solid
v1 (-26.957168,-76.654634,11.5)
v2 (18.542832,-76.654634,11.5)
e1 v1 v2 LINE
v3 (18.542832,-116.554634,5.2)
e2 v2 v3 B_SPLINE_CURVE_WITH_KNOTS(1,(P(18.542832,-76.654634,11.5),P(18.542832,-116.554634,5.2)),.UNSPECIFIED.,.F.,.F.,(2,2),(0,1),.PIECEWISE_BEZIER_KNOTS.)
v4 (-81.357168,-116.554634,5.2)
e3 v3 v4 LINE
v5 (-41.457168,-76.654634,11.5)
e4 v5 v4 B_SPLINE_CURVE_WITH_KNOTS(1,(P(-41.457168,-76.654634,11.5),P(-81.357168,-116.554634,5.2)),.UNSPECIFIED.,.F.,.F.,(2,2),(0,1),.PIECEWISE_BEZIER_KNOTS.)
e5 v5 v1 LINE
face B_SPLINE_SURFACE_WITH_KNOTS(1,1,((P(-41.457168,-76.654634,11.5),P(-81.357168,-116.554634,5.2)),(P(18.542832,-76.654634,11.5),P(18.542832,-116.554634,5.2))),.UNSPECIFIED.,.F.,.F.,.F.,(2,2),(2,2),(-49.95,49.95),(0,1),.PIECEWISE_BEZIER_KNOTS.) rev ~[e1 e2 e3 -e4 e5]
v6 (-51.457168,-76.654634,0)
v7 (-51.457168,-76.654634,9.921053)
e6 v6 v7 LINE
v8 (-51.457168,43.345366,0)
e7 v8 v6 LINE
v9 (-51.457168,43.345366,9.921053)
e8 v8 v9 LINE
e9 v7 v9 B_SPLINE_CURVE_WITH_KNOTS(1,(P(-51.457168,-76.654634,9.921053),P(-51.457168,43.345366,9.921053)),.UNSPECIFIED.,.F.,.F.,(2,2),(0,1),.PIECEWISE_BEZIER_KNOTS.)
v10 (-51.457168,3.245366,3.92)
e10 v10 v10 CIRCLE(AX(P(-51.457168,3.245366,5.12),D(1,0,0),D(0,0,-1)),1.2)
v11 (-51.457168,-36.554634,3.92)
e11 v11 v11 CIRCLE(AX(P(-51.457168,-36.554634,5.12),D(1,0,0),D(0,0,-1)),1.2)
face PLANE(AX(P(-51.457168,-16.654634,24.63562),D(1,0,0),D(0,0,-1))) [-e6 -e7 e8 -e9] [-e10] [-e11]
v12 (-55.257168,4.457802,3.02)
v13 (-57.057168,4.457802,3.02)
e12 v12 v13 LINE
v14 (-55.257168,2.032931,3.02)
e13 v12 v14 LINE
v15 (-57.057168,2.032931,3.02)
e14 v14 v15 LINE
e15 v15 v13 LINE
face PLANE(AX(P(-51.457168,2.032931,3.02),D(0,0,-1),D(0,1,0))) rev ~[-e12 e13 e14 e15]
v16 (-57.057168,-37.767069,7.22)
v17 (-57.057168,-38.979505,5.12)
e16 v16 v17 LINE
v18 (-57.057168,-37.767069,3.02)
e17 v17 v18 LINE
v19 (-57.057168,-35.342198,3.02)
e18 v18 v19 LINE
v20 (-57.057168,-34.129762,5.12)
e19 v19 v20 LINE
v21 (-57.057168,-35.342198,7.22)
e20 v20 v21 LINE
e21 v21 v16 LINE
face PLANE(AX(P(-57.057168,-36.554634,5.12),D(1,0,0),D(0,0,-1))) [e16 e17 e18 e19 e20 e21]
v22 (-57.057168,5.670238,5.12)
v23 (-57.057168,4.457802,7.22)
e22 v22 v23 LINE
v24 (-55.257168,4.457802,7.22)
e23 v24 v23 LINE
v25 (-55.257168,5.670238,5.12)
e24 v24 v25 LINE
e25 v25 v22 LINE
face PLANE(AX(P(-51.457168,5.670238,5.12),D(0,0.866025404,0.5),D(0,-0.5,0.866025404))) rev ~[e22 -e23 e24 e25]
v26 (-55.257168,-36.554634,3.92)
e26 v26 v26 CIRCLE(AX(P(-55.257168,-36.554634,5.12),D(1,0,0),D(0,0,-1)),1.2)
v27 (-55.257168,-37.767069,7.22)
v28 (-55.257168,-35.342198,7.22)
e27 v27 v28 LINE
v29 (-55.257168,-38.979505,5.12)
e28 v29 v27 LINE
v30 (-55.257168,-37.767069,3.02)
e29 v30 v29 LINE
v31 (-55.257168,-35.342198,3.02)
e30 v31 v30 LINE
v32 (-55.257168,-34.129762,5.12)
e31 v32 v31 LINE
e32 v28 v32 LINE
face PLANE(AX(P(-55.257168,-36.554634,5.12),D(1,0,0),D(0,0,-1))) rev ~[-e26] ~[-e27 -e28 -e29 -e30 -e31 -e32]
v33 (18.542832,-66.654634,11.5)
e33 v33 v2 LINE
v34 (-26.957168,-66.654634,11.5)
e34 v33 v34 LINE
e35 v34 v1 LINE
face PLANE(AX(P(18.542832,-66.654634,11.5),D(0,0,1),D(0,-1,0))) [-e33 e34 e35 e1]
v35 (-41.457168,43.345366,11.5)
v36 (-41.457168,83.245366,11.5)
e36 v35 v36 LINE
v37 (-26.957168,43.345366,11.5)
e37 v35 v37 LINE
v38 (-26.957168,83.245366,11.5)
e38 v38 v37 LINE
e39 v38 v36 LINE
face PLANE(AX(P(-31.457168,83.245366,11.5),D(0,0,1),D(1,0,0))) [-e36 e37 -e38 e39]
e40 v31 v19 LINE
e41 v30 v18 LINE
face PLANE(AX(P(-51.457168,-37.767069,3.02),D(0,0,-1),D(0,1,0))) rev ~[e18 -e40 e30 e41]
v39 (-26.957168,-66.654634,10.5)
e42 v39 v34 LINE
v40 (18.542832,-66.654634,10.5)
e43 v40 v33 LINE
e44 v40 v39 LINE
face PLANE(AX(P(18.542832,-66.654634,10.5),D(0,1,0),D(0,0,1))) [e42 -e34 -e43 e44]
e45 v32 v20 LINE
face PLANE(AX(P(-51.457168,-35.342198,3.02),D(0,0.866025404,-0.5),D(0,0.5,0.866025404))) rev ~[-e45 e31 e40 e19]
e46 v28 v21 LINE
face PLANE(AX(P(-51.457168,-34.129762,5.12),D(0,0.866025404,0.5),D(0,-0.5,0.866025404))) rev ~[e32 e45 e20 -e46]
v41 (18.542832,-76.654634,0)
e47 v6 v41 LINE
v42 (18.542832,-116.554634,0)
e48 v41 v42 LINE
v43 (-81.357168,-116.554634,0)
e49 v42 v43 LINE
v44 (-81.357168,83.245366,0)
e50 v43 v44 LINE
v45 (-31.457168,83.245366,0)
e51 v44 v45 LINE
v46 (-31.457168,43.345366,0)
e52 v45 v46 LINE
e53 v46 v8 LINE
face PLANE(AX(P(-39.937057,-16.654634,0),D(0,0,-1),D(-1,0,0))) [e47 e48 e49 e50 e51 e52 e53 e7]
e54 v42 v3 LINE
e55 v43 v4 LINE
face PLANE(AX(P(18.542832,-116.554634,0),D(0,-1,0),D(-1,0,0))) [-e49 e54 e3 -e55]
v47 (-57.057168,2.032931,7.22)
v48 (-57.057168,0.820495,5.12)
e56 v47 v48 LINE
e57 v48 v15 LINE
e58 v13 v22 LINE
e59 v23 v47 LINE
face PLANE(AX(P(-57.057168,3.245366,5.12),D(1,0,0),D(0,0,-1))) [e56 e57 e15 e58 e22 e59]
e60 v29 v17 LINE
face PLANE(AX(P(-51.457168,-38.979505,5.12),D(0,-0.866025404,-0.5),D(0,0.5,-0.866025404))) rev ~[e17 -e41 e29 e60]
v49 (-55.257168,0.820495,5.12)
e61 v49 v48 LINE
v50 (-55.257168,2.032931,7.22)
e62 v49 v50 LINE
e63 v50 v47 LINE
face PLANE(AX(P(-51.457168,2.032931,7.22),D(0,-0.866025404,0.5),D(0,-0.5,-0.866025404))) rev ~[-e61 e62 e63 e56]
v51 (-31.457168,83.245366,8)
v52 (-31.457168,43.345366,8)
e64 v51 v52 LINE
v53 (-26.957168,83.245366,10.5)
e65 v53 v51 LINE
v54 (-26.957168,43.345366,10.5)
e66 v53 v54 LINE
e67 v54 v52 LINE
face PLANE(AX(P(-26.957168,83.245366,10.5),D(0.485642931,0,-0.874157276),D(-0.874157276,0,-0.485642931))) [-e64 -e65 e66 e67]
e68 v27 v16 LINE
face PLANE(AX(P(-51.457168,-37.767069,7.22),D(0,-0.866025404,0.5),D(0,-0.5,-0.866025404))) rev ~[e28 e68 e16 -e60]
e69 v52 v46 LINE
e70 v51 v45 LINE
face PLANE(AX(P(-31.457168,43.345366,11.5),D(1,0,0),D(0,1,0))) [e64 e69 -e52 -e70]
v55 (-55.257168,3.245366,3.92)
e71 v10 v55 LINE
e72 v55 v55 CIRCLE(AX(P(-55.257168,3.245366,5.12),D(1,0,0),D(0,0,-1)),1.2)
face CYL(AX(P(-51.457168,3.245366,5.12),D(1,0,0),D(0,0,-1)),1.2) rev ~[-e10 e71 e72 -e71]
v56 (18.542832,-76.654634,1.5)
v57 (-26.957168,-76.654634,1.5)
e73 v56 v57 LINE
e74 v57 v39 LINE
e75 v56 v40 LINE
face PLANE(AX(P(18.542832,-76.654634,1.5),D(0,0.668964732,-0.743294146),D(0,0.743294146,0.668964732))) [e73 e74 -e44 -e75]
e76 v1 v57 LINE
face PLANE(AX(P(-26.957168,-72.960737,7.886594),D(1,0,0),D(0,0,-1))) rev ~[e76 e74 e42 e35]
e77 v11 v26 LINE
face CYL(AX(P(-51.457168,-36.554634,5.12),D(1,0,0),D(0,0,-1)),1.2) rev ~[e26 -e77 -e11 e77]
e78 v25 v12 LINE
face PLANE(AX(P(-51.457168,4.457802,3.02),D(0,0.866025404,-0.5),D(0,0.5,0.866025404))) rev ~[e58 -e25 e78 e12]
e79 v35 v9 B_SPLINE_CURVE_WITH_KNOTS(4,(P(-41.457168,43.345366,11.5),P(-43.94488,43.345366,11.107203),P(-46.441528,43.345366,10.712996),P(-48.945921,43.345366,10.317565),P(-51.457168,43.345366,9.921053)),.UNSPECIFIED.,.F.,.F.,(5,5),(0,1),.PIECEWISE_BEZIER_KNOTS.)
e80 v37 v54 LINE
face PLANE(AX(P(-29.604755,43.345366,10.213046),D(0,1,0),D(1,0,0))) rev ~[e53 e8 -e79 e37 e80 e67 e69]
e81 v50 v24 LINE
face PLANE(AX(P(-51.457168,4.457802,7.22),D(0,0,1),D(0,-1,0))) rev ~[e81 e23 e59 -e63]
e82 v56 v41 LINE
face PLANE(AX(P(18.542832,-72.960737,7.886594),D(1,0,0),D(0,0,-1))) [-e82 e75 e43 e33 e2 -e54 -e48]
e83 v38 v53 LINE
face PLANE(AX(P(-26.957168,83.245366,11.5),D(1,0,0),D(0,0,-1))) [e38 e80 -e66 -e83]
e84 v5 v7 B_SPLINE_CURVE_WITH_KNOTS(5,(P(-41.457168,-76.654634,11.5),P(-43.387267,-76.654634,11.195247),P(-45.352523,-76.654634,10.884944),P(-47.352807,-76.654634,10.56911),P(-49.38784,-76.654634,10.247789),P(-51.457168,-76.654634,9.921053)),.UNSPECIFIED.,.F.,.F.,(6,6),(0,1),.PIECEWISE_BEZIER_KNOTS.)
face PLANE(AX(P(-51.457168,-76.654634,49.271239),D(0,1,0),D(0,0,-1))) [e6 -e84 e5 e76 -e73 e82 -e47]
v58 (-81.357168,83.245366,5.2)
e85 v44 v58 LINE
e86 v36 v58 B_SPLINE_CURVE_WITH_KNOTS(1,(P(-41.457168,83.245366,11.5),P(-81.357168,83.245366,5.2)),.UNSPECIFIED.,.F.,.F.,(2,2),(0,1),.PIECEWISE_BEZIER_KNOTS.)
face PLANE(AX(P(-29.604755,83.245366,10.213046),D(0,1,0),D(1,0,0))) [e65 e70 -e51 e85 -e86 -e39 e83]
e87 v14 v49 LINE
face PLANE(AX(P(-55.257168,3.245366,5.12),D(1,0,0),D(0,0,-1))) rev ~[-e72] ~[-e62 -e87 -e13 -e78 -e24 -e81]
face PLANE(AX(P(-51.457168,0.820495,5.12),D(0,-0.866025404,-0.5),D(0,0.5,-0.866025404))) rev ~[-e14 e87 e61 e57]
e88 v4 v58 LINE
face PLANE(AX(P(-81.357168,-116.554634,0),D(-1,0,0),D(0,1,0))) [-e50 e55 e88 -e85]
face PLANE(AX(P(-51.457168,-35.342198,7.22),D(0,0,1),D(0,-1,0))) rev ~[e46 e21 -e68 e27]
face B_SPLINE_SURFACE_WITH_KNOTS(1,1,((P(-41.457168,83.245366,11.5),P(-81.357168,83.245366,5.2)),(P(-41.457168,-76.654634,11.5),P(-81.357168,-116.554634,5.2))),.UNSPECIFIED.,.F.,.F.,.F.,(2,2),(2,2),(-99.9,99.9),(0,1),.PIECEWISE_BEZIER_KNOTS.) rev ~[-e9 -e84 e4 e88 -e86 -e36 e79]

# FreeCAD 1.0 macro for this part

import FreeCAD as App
import Part
import Sketcher
from FreeCAD import Vector
Q = App.Units.Quantity


def add_polygon(sketch, points):
    """Adds a closed chain of lines whose ends are joined by coincident constraints."""
    first, n = sketch.GeometryCount, len(points)
    for a, b in zip(points, points[1:] + points[:1]):
        sketch.addGeometry(Part.LineSegment(App.Vector(*a, 0), App.Vector(*b, 0)), False)
    for i in range(n):
        sketch.addConstraint(Sketcher.Constraint("Coincident", first + i, 2, first + (i + 1) % n, 1))

doc = App.newDocument("Part")
body = doc.addObject("PartDesign::Body", "Body")

sketch1 = doc.addObject("Sketcher::SketchObject", "Sketch")
body.addObject(sketch1)
sketch1.AttachmentSupport = (doc.XY_Plane, [""])
sketch1.MapMode = "FlatFace"
add_polygon(sketch1, [(18.542832, 43.345366), (18.542832, 83.245366), (-81.357168, 83.245366), (-81.357168, -116.554634), (18.542832, -116.554634), (18.542832, -76.654634), (-51.457168, -76.654634), (-51.457168, 43.345366)])
sketch1.addConstraint(Sketcher.Constraint("Vertical", 0))
sketch1.addConstraint(Sketcher.Constraint("Horizontal", 1))
sketch1.addConstraint(Sketcher.Constraint("Vertical", 2))
sketch1.addConstraint(Sketcher.Constraint("Horizontal", 3))
sketch1.addConstraint(Sketcher.Constraint("Vertical", 4))
sketch1.addConstraint(Sketcher.Constraint("Horizontal", 5))
sketch1.addConstraint(Sketcher.Constraint("Vertical", 6))
sketch1.addConstraint(Sketcher.Constraint("Horizontal", 7))
sketch1.addConstraint(Sketcher.Constraint("Vertical", 0, 2, 3, 2))
sketch1.addConstraint(Sketcher.Constraint("Equal", 0, 4))
sketch1.addConstraint(Sketcher.Constraint("DistanceX", 5, 2, 5, 1, Q("70 mm")))
sketch1.addConstraint(Sketcher.Constraint("DistanceY", 6, 1, 6, 2, Q("120 mm")))
sketch1.addConstraint(Sketcher.Constraint("DistanceX", 1, 2, 1, 1, Q("99.9 mm")))
sketch1.addConstraint(Sketcher.Constraint("DistanceY", 0, 1, 0, 2, Q("39.9 mm")))
sketch1.addConstraint(Sketcher.Constraint("DistanceX", -1, 1, 0, 2, Q("18.542832 mm")))
sketch1.addConstraint(Sketcher.Constraint("DistanceY", -1, 1, 0, 2, Q("83.245366 mm")))
pad1 = doc.addObject("PartDesign::Pad", "Pad")
body.addObject(pad1)
pad1.Profile = sketch1
pad1.Length = 5.2

sketch2 = doc.addObject("Sketcher::SketchObject", "Sketch001")
body.addObject(sketch2)
sketch2.AttachmentSupport = (doc.XY_Plane, [""])
sketch2.MapMode = "FlatFace"
sketch2.AttachmentOffset = App.Placement(Vector(0, 0, 11.5), App.Rotation())
add_polygon(sketch2, [(-41.457168, 83.245366), (-41.457168, -76.654634), (18.542832, -76.654634), (18.542832, 83.245366)])
sketch2.addConstraint(Sketcher.Constraint("Vertical", 0))
sketch2.addConstraint(Sketcher.Constraint("Horizontal", 1))
sketch2.addConstraint(Sketcher.Constraint("Vertical", 2))
sketch2.addConstraint(Sketcher.Constraint("Horizontal", 3))
sketch2.addConstraint(Sketcher.Constraint("DistanceX", 1, 1, 1, 2, Q("60 mm")))
sketch2.addConstraint(Sketcher.Constraint("DistanceY", 0, 2, 0, 1, Q("159.9 mm")))
sketch2.addConstraint(Sketcher.Constraint("DistanceX", 0, 2, -1, 1, Q("41.457168 mm")))
sketch2.addConstraint(Sketcher.Constraint("DistanceY", 0, 2, -1, 1, Q("76.654634 mm")))

sketch3 = doc.addObject("Sketcher::SketchObject", "Sketch002")
body.addObject(sketch3)
sketch3.AttachmentSupport = (doc.XY_Plane, [""])
sketch3.MapMode = "FlatFace"
sketch3.AttachmentOffset = App.Placement(Vector(0, 0, 5.2), App.Rotation())
add_polygon(sketch3, [(-81.357168, 83.245366), (-81.357168, -116.554634), (18.542832, -116.554634), (18.542832, 83.245366)])
sketch3.addConstraint(Sketcher.Constraint("Vertical", 0))
sketch3.addConstraint(Sketcher.Constraint("Horizontal", 1))
sketch3.addConstraint(Sketcher.Constraint("Vertical", 2))
sketch3.addConstraint(Sketcher.Constraint("Horizontal", 3))
sketch3.addConstraint(Sketcher.Constraint("DistanceX", 1, 1, 1, 2, Q("99.9 mm")))
sketch3.addConstraint(Sketcher.Constraint("DistanceY", 0, 2, 0, 1, Q("199.8 mm")))
sketch3.addConstraint(Sketcher.Constraint("DistanceX", 0, 2, -1, 1, Q("81.357168 mm")))
sketch3.addConstraint(Sketcher.Constraint("DistanceY", 0, 2, -1, 1, Q("116.554634 mm")))

additiveloft = doc.addObject("PartDesign::AdditiveLoft", "AdditiveLoft")
body.addObject(additiveloft)
additiveloft.Profile = sketch2
additiveloft.Sections = [sketch3]

sketch4 = doc.addObject("Sketcher::SketchObject", "Sketch003")
body.addObject(sketch4)
sketch4.AttachmentSupport = (doc.YZ_Plane, [""])
sketch4.MapMode = "FlatFace"
sketch4.AttachmentOffset = App.Placement(Vector(0, 0, -51.457168), App.Rotation())
add_polygon(sketch4, [(43.345366, 49.271239), (-76.654634, 49.271239), (-76.654634, 0), (43.345366, 0)])
sketch4.addConstraint(Sketcher.Constraint("Horizontal", 0))
sketch4.addConstraint(Sketcher.Constraint("Vertical", 1))
sketch4.addConstraint(Sketcher.Constraint("Horizontal", 2))
sketch4.addConstraint(Sketcher.Constraint("Vertical", 3))
sketch4.addConstraint(Sketcher.Constraint("PointOnObject", 1, 2, -1))
sketch4.addConstraint(Sketcher.Constraint("DistanceX", 0, 2, 0, 1, Q("120 mm")))
sketch4.addConstraint(Sketcher.Constraint("DistanceY", 1, 2, 1, 1, Q("49.271239 mm")))
sketch4.addConstraint(Sketcher.Constraint("DistanceX", 0, 2, -1, 1, Q("76.654634 mm")))
pocket1 = doc.addObject("PartDesign::Pocket", "Pocket")
body.addObject(pocket1)
pocket1.Profile = sketch4
pocket1.Length = 78
pocket1.Reversed = True

sketch5 = doc.addObject("Sketcher::SketchObject", "Sketch004")
body.addObject(sketch5)
sketch5.AttachmentSupport = (doc.YZ_Plane, [""])
sketch5.MapMode = "FlatFace"
sketch5.AttachmentOffset = App.Placement(Vector(0, 0, -51.457168), App.Rotation())
add_polygon(sketch5, [(-34.129762, 5.12), (-35.342198, 7.22), (-37.767069, 7.22), (-38.979505, 5.12), (-37.767069, 3.02), (-35.342198, 3.02)])
add_polygon(sketch5, [(5.670238, 5.12), (4.457802, 7.22), (2.032931, 7.22), (0.820495, 5.12), (2.032931, 3.02), (4.457802, 3.02)])
sketch5.addConstraint(Sketcher.Constraint("Horizontal", 1))
sketch5.addConstraint(Sketcher.Constraint("Horizontal", 4))
sketch5.addConstraint(Sketcher.Constraint("Horizontal", 7))
sketch5.addConstraint(Sketcher.Constraint("Horizontal", 10))
sketch5.addConstraint(Sketcher.Constraint("Parallel", 0, 3))
sketch5.addConstraint(Sketcher.Constraint("Parallel", 2, 5))
sketch5.addConstraint(Sketcher.Constraint("Parallel", 3, 6))
sketch5.addConstraint(Sketcher.Constraint("Parallel", 5, 8))
sketch5.addConstraint(Sketcher.Constraint("Parallel", 6, 9))
sketch5.addConstraint(Sketcher.Constraint("Parallel", 8, 11))
sketch5.addConstraint(Sketcher.Constraint("Horizontal", 2, 2, 5, 2))
sketch5.addConstraint(Sketcher.Constraint("Horizontal", 1, 2, 6, 2))
sketch5.addConstraint(Sketcher.Constraint("Horizontal", 5, 2, 8, 2))
sketch5.addConstraint(Sketcher.Constraint("Horizontal", 4, 2, 9, 2))
sketch5.addConstraint(Sketcher.Constraint("Horizontal", 8, 2, 11, 2))
sketch5.addConstraint(Sketcher.Constraint("Vertical", 1, 2, 3, 2))
sketch5.addConstraint(Sketcher.Constraint("Vertical", 0, 2, 4, 2))
sketch5.addConstraint(Sketcher.Constraint("Equal", 4, 7))
sketch5.addConstraint(Sketcher.Constraint("Angle", 0, Q("120 deg")))
sketch5.addConstraint(Sketcher.Constraint("DistanceY", 2, 2, 1, 2, Q("2.1 mm")))
sketch5.addConstraint(Sketcher.Constraint("DistanceX", 0, 2, 6, 2, Q("39.8 mm")))
sketch5.addConstraint(Sketcher.Constraint("DistanceY", -1, 1, 0, 2, Q("7.22 mm")))
sketch5.addConstraint(Sketcher.Constraint("DistanceX", 1, 2, 1, 1, Q("2.424871 mm")))
sketch5.addConstraint(Sketcher.Constraint("DistanceX", 1, 2, -1, 1, Q("37.767069 mm")))
pocket2 = doc.addObject("PartDesign::Pocket", "Pocket001")
body.addObject(pocket2)
pocket2.Profile = sketch5
pocket2.Length = 5.6

sketch6 = doc.addObject("Sketcher::SketchObject", "Sketch005")
body.addObject(sketch6)
sketch6.AttachmentSupport = (doc.YZ_Plane, [""])
sketch6.MapMode = "FlatFace"
sketch6.AttachmentOffset = App.Placement(Vector(0, 0, -51.457168), App.Rotation())
sketch6.addGeometry(Part.Circle(Vector(3.245366, 5.12, 0), Vector(0, 0, 1), 2.424871), False)
sketch6.addGeometry(Part.Circle(Vector(3.245366, 5.12, 0), Vector(0, 0, 1), 1.2), False)
sketch6.addGeometry(Part.Circle(Vector(-36.554634, 5.12, 0), Vector(0, 0, 1), 2.424871), False)
sketch6.addGeometry(Part.Circle(Vector(-36.554634, 5.12, 0), Vector(0, 0, 1), 1.2), False)
sketch6.addConstraint(Sketcher.Constraint("Coincident", 1, 3, 0, 3))
sketch6.addConstraint(Sketcher.Constraint("Coincident", 3, 3, 2, 3))
sketch6.addConstraint(Sketcher.Constraint("Equal", 0, 2))
sketch6.addConstraint(Sketcher.Constraint("Equal", 1, 3))
sketch6.addConstraint(Sketcher.Constraint("Horizontal", 1, 3, 2, 3))
sketch6.addConstraint(Sketcher.Constraint("Diameter", 1, Q("2.4 mm")))
sketch6.addConstraint(Sketcher.Constraint("DistanceX", 2, 3, 0, 3, Q("39.8 mm")))
sketch6.addConstraint(Sketcher.Constraint("DistanceY", -1, 1, 0, 3, Q("5.12 mm")))
sketch6.addConstraint(Sketcher.Constraint("Diameter", 0, Q("4.849742 mm")))
sketch6.addConstraint(Sketcher.Constraint("DistanceX", -1, 1, 0, 3, Q("3.245366 mm")))
pad2 = doc.addObject("PartDesign::Pad", "Pad001")
body.addObject(pad2)
pad2.Profile = sketch6
pad2.Length = 3.8
pad2.Reversed = True

sketch7 = doc.addObject("Sketcher::SketchObject", "Sketch006")
body.addObject(sketch7)
sketch7.AttachmentSupport = (doc.XY_Plane, [""])
sketch7.MapMode = "FlatFace"
sketch7.AttachmentOffset = App.Placement(Vector(0, 0, 11.5), App.Rotation())
add_polygon(sketch7, [(-31.457168, 83.245366), (-31.457168, 43.345366), (18.542832, 43.345366), (18.542832, 83.245366)])
sketch7.addConstraint(Sketcher.Constraint("Vertical", 0))
sketch7.addConstraint(Sketcher.Constraint("Horizontal", 1))
sketch7.addConstraint(Sketcher.Constraint("Vertical", 2))
sketch7.addConstraint(Sketcher.Constraint("Horizontal", 3))
sketch7.addConstraint(Sketcher.Constraint("DistanceX", 1, 1, 1, 2, Q("50 mm")))
sketch7.addConstraint(Sketcher.Constraint("DistanceY", 0, 2, 0, 1, Q("39.9 mm")))
sketch7.addConstraint(Sketcher.Constraint("DistanceX", 0, 2, -1, 1, Q("31.457168 mm")))
sketch7.addConstraint(Sketcher.Constraint("DistanceY", -1, 1, 0, 2, Q("43.345366 mm")))
pocket3 = doc.addObject("PartDesign::Pocket", "Pocket002")
body.addObject(pocket3)
pocket3.Profile = sketch7
pocket3.Length = 24

sketch8 = doc.addObject("Sketcher::SketchObject", "Sketch007")
body.addObject(sketch8)
sketch8.AttachmentSupport = (doc.XZ_Plane, [""])
sketch8.MapMode = "FlatFace"
sketch8.AttachmentOffset = App.Placement(Vector(0, 0, -83.245366), App.Rotation())
add_polygon(sketch8, [(-31.457168, 11.5), (-26.957168, 11.5), (-26.957168, 10.5), (-31.457168, 8)])
sketch8.addConstraint(Sketcher.Constraint("Horizontal", 0))
sketch8.addConstraint(Sketcher.Constraint("Vertical", 1))
sketch8.addConstraint(Sketcher.Constraint("Vertical", 3))
sketch8.addConstraint(Sketcher.Constraint("DistanceY", 1, 2, 1, 1, Q("1 mm")))
sketch8.addConstraint(Sketcher.Constraint("DistanceX", 0, 1, 0, 2, Q("4.5 mm")))
sketch8.addConstraint(Sketcher.Constraint("DistanceY", 3, 1, 3, 2, Q("3.5 mm")))
sketch8.addConstraint(Sketcher.Constraint("DistanceY", -1, 1, 2, 2, Q("8 mm")))
sketch8.addConstraint(Sketcher.Constraint("DistanceX", 0, 2, -1, 1, Q("26.957168 mm")))
pad3 = doc.addObject("PartDesign::Pad", "Pad002")
body.addObject(pad3)
pad3.Profile = sketch8
pad3.Length = 39.9

sketch9 = doc.addObject("Sketcher::SketchObject", "Sketch008")
body.addObject(sketch9)
sketch9.AttachmentSupport = (doc.YZ_Plane, [""])
sketch9.MapMode = "FlatFace"
sketch9.AttachmentOffset = App.Placement(Vector(0, 0, 18.542832), App.Rotation())
add_polygon(sketch9, [(-76.654634, 11.5), (-76.654634, 1.5), (-66.654634, 10.5), (-66.654634, 11.5)])
sketch9.addConstraint(Sketcher.Constraint("Vertical", 0))
sketch9.addConstraint(Sketcher.Constraint("Vertical", 2))
sketch9.addConstraint(Sketcher.Constraint("Horizontal", 3))
sketch9.addConstraint(Sketcher.Constraint("Equal", 3, 0))
sketch9.addConstraint(Sketcher.Constraint("DistanceX", 3, 2, 3, 1, Q("10 mm")))
sketch9.addConstraint(Sketcher.Constraint("DistanceY", 2, 1, 2, 2, Q("1 mm")))
sketch9.addConstraint(Sketcher.Constraint("DistanceY", -1, 1, 0, 2, Q("1.5 mm")))
sketch9.addConstraint(Sketcher.Constraint("DistanceX", 0, 2, -1, 1, Q("76.654634 mm")))
pad4 = doc.addObject("PartDesign::Pad", "Pad003")
body.addObject(pad4)
pad4.Profile = sketch9
pad4.Length = 45.5
pad4.Reversed = True

doc.recompute()
